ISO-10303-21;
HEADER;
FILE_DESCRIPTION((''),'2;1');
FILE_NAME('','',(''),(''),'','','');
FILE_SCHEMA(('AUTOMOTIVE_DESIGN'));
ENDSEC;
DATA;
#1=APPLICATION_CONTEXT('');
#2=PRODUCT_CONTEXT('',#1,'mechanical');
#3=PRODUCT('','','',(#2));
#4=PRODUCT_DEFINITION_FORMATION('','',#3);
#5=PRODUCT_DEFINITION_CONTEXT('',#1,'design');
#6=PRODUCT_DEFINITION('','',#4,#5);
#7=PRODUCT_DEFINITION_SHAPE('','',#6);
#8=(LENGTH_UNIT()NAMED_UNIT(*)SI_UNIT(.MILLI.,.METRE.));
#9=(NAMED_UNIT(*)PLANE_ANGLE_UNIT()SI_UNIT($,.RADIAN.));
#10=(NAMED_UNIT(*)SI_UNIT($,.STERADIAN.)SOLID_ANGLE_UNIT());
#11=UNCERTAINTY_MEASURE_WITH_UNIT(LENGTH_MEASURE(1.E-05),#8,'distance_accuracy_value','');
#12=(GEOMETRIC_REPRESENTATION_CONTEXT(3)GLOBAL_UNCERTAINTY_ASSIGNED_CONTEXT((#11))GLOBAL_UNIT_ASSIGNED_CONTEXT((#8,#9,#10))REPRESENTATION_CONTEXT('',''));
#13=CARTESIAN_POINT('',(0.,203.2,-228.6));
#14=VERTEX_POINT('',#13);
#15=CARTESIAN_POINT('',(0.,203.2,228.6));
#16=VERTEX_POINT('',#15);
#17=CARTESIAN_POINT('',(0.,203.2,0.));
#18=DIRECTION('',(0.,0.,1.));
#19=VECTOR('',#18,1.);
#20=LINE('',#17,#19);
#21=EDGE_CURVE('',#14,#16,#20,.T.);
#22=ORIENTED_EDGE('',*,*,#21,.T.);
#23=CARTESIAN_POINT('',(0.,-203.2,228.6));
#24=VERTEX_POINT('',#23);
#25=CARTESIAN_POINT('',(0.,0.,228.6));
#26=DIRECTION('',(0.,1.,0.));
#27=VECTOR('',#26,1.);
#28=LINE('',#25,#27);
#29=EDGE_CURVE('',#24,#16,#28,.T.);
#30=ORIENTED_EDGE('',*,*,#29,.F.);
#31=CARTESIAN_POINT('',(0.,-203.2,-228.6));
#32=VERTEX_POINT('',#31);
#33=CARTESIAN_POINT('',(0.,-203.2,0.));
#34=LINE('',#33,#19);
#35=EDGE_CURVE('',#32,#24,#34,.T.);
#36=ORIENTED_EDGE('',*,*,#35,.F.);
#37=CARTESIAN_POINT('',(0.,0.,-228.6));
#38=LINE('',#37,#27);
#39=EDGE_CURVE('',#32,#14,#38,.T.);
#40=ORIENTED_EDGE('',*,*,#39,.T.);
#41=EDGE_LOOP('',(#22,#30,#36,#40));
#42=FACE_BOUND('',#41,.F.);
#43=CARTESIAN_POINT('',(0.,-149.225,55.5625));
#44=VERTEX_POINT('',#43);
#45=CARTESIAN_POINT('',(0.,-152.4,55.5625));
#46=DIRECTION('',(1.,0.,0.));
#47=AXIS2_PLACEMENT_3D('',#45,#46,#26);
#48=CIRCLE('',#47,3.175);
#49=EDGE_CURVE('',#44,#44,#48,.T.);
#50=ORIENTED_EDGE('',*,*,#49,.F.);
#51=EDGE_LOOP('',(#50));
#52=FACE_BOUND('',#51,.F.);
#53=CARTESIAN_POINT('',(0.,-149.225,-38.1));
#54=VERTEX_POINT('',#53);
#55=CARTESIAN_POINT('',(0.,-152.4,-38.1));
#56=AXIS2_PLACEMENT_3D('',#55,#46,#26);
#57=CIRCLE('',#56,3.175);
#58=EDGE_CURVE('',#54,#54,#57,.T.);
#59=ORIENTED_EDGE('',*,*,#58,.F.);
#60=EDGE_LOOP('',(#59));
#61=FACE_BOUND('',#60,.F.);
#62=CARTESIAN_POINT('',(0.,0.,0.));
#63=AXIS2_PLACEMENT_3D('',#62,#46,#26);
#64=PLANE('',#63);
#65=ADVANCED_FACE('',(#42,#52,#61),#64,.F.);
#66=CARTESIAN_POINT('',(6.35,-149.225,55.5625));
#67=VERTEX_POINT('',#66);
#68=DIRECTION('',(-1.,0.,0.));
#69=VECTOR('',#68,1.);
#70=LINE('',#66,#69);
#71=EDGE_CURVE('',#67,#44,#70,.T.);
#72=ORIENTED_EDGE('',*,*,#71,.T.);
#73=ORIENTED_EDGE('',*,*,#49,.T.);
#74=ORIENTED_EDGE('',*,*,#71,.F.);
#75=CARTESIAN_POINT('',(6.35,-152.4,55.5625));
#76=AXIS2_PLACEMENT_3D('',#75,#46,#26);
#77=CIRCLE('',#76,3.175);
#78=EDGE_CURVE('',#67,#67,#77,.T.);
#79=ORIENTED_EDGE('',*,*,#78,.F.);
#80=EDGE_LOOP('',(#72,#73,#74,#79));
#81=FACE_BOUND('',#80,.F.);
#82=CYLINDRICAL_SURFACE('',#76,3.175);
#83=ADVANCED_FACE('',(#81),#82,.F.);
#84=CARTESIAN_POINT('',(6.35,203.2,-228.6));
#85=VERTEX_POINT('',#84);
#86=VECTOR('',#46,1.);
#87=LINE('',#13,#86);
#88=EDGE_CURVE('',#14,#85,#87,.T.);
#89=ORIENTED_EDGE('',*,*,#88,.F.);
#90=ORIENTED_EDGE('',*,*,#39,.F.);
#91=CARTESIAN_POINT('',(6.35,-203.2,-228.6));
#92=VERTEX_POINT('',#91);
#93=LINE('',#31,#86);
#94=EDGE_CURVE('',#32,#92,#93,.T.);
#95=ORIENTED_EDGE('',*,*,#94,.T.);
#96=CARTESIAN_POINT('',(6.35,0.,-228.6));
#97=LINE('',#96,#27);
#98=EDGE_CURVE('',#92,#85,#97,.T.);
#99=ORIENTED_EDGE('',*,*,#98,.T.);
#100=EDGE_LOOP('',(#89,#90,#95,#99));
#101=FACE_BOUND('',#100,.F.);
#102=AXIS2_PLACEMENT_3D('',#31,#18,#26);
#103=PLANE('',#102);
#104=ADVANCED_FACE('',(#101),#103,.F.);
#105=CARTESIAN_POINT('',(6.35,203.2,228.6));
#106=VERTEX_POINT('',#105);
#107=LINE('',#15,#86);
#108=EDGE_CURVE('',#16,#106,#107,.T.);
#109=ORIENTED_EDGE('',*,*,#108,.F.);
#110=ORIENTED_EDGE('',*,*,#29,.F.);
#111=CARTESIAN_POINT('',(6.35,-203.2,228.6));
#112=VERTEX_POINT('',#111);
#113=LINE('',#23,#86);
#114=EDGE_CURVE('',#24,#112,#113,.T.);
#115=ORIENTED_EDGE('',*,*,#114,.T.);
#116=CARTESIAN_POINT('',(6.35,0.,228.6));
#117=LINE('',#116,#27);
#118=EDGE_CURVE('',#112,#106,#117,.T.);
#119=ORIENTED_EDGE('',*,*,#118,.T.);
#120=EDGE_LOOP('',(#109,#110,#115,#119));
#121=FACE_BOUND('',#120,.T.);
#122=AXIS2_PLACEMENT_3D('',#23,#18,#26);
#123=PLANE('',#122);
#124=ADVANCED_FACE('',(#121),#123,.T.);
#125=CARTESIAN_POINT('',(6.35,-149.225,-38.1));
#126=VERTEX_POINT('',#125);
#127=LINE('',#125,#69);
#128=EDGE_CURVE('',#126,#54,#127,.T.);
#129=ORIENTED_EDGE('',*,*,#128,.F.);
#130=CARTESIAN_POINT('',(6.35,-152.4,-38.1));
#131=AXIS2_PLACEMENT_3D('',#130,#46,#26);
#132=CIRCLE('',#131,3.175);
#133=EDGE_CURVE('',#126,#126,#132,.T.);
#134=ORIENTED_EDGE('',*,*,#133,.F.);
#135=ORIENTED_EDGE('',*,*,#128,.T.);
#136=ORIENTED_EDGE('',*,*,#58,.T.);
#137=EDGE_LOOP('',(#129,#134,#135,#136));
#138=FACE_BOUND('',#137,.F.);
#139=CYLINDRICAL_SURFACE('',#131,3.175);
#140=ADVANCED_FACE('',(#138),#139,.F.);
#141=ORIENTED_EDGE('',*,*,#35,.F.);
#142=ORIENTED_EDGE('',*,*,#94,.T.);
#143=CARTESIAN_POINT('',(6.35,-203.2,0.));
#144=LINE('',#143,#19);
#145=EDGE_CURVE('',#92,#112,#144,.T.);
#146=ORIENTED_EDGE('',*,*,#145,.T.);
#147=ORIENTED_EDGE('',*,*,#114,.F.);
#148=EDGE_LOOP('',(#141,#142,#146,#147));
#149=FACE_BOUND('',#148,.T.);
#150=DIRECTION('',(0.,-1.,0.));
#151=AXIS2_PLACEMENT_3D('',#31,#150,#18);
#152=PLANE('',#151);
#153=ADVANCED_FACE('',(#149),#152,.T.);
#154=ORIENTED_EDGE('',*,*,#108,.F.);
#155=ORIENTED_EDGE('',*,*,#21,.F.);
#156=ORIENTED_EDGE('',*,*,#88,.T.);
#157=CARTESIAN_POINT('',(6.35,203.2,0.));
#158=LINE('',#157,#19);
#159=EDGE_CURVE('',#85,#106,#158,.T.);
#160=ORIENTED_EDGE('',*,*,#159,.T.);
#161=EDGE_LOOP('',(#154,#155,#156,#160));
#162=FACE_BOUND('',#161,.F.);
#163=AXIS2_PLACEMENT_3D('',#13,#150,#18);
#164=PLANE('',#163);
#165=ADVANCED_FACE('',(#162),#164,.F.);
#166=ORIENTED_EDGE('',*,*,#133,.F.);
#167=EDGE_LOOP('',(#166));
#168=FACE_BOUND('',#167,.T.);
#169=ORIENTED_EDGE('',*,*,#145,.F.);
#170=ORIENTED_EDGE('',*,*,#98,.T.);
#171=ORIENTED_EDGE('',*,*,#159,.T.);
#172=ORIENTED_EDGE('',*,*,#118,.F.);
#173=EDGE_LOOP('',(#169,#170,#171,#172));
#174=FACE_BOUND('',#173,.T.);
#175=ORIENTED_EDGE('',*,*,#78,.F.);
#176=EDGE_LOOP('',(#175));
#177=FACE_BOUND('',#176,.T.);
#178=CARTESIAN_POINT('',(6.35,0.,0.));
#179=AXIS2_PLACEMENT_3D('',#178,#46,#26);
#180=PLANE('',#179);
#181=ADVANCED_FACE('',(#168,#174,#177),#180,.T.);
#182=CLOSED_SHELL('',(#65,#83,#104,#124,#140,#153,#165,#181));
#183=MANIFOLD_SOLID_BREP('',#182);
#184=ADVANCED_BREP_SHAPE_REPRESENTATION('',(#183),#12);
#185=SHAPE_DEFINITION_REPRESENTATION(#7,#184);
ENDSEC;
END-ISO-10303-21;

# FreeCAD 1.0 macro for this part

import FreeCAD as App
import Part
import Sketcher
Q = App.Units.Quantity

doc = App.newDocument("Part")
params = doc.addObject("Spreadsheet::Sheet", "Params")
for row, (alias, value) in enumerate([
    ("sketch1_width", "16 in"),
    ("sketch1_height", "18 in"),
    ("pad1_length", "0.25 in"),
    ("sketch2_diameter", "0.25 in"),
], start=1):
    params.set(f"A{row}", alias)
    params.set(f"B{row}", "=" + value)
    params.setAlias(f"B{row}", alias)

body = doc.addObject("PartDesign::Body", "Body")

# Sketch on YZ plane
sketch1 = body.newObject("Sketcher::SketchObject", "Sketch")
sketch1.AttachmentSupport = (doc.getObject("YZ_Plane"), [""])
sketch1.MapMode = "FlatFace"
sketch1.addGeometry(Part.LineSegment(App.Vector(-203, 229, 0), App.Vector(-203, -229, 0)), False)
sketch1.addGeometry(Part.LineSegment(App.Vector(-203, -229, 0), App.Vector(203, -229, 0)), False)
sketch1.addGeometry(Part.LineSegment(App.Vector(203, -229, 0), App.Vector(203, 229, 0)), False)
sketch1.addGeometry(Part.LineSegment(App.Vector(203, 229, 0), App.Vector(-203, 229, 0)), False)
sketch1.addConstraint(Sketcher.Constraint("Coincident", 0, 2, 1, 1))
sketch1.addConstraint(Sketcher.Constraint("Coincident", 1, 2, 2, 1))
sketch1.addConstraint(Sketcher.Constraint("Coincident", 2, 2, 3, 1))
sketch1.addConstraint(Sketcher.Constraint("Coincident", 3, 2, 0, 1))
sketch1.addConstraint(Sketcher.Constraint("Vertical", 0))
sketch1.addConstraint(Sketcher.Constraint("Horizontal", 1))
sketch1.addConstraint(Sketcher.Constraint("Vertical", 2))
sketch1.addConstraint(Sketcher.Constraint("Horizontal", 3))
sketch1.addConstraint(Sketcher.Constraint("Symmetric", 0, 2, 2, 2, -1, 1))
sketch1.addConstraint(Sketcher.Constraint("DistanceX", 1, 1, 1, 2, Q("16 in")))
sketch1.addConstraint(Sketcher.Constraint("DistanceY", 0, 2, 0, 1, Q("18 in")))
sketch1.setExpression("Constraints[9]", "Params.sketch1_width")
sketch1.setExpression("Constraints[10]", "Params.sketch1_height")
pad1 = body.newObject("PartDesign::Pad", "Pad")
pad1.Profile = sketch1
pad1.setExpression("Length", "Params.pad1_length")

# Sketch on YZ plane
sketch2 = body.newObject("Sketcher::SketchObject", "Sketch001")
sketch2.AttachmentSupport = (doc.getObject("YZ_Plane"), [""])
sketch2.MapMode = "FlatFace"
sketch2.AttachmentOffset = App.Placement(App.Vector(0, 0, 0.25 * 25.4), App.Rotation())
sketch2.addGeometry(Part.Circle(App.Vector(-152.4, -38.1, 0), App.Vector(0, 0, 1), 3.2), False)
sketch2.addGeometry(Part.Circle(App.Vector(-152.4, 55.6, 0), App.Vector(0, 0, 1), 3.2), False)
sketch2.addConstraint(Sketcher.Constraint("Equal", 0, 1))
sketch2.addConstraint(Sketcher.Constraint("Vertical", 0, 3, 1, 3))
sketch2.addConstraint(Sketcher.Constraint("Diameter", 0, Q("0.25 in")))
sketch2.addConstraint(Sketcher.Constraint("DistanceX", 0, 3, -1, 1, Q("6 in")))
sketch2.addConstraint(Sketcher.Constraint("DistanceY", 0, 3, -1, 1, Q("1.5 in")))
sketch2.addConstraint(Sketcher.Constraint("DistanceY", -1, 1, 1, 3, Q("2.1875 in")))
sketch2.setExpression("Constraints[2]", "Params.sketch2_diameter")
pocket1 = body.newObject("PartDesign::Pocket", "Pocket")
pocket1.Profile = sketch2
pocket1.Type = "ThroughAll"

doc.recompute()
